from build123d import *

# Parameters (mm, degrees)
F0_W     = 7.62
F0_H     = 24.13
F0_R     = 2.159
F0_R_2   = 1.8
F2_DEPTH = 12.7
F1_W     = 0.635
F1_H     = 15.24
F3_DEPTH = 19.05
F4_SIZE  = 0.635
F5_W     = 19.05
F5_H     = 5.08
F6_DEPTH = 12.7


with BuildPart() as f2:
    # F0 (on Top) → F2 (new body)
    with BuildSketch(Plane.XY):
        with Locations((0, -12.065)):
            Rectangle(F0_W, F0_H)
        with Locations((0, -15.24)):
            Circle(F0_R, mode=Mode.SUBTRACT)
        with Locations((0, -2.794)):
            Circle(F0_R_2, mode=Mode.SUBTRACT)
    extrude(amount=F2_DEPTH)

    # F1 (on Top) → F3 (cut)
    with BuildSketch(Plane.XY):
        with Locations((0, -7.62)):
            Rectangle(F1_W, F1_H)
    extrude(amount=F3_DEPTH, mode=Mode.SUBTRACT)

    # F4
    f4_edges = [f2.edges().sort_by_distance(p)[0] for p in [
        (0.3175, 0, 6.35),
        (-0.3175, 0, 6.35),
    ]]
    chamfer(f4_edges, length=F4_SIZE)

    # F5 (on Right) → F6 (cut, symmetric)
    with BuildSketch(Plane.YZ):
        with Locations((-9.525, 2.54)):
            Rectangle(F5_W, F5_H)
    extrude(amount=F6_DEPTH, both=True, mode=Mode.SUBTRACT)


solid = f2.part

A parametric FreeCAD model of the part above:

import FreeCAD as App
import Part
import Sketcher

V = App.Vector
Q = App.Units.Quantity


def edges_at(feature, points):
    """Names of the edges that pass closest to the given points."""
    edges = feature.Shape.Edges
    near = lambda p: min(range(len(edges)), key=lambda i: edges[i].distToShape(Part.Vertex(*p))[0])
    return sorted({f"Edge{near(p) + 1}" for p in points})


def add_polygon(sketch, points):
    """Adds a closed chain of lines whose ends are joined by coincident constraints."""
    first, n = sketch.GeometryCount, len(points)
    for a, b in zip(points, points[1:] + points[:1]):
        sketch.addGeometry(Part.LineSegment(App.Vector(*a, 0), App.Vector(*b, 0)), False)
    for i in range(n):
        sketch.addConstraint(Sketcher.Constraint("Coincident", first + i, 2, first + (i + 1) % n, 1))

doc = App.newDocument("Part")
params = doc.addObject("Spreadsheet::Sheet", "Params")
for row, (alias, value) in enumerate([
    ("sketch1_diameter", "0.17 in"),
    ("sketch1_width", "0.3 in"),
    ("sketch1_height", "0.95 in"),
    ("pad1_length", "0.5 in"),
    ("sketch2_height", "0.6 in"),
    ("sketch2_width", "0.025 in"),
    ("pocket1_length", "0.75 in"),
    ("chamfer_size", "0.025 in"),
    ("sketch3_height", "0.2 in"),
    ("sketch3_width", "0.75 in"),
    ("pocket2_length", "1 in"),
], start=1):
    params.set(f"A{row}", alias)
    params.set(f"B{row}", "=" + value)
    params.setAlias(f"B{row}", alias)

body = doc.addObject("PartDesign::Body", "Body")

sketch1 = body.newObject("Sketcher::SketchObject", "Sketch")
sketch1.AttachmentSupport = (doc.getObject("XY_Plane"), [""])
sketch1.MapMode = "FlatFace"
add_polygon(sketch1, [(-3.81, 0), (-3.81, -24.13), (3.81, -24.13), (3.81, 0)])
sketch1.addGeometry(Part.Circle(V(0, -15.24, 0), V(0, 0, 1), 2.159), False)
sketch1.addGeometry(Part.Circle(V(0, -2.794, 0), V(0, 0, 1), 1.8), False)
sketch1.addConstraint([
    Sketcher.Constraint("Vertical", 0),
    Sketcher.Constraint("Horizontal", 1),
    Sketcher.Constraint("Vertical", 2),
    Sketcher.Constraint("Horizontal", 3),
    Sketcher.Constraint("Symmetric", 2, 2, 3, 2, -1, 1),
    Sketcher.Constraint("PointOnObject", 4, 3, -2),
    Sketcher.Constraint("PointOnObject", 5, 3, -2),
    Sketcher.Constraint("Diameter", 4, Q("0.17 in")),
    Sketcher.Constraint("DistanceX", 1, 1, 1, 2, Q("0.3 in")),
    Sketcher.Constraint("DistanceY", 0, 2, 0, 1, Q("0.95 in")),
    Sketcher.Constraint("DistanceY", 4, 3, -1, 1, Q("0.6 in")),
    Sketcher.Constraint("Diameter", 5, 3.6),
    Sketcher.Constraint("DistanceY", 5, 3, -1, 1, Q("0.11 in")),
])
sketch1.setExpression("Constraints[11]", "Params.sketch1_diameter")
sketch1.setExpression("Constraints[12]", "Params.sketch1_width")
sketch1.setExpression("Constraints[13]", "Params.sketch1_height")
pad1 = body.newObject("PartDesign::Pad", "Pad")
pad1.Profile = sketch1
pad1.setExpression("Length", "Params.pad1_length")

sketch2 = body.newObject("Sketcher::SketchObject", "Sketch001")
sketch2.AttachmentSupport = (doc.getObject("XY_Plane"), [""])
sketch2.MapMode = "FlatFace"
add_polygon(sketch2, [(-0.3175, 0), (-0.3175, -15.24), (0.3175, -15.24), (0.3175, 0)])
sketch2.addConstraint([
    Sketcher.Constraint("Vertical", 0),
    Sketcher.Constraint("Horizontal", 1),
    Sketcher.Constraint("Vertical", 2),
    Sketcher.Constraint("Horizontal", 3),
    Sketcher.Constraint("Symmetric", 2, 2, 3, 2, -1, 1),
    Sketcher.Constraint("DistanceY", 0, 2, 0, 1, Q("0.6 in")),
    Sketcher.Constraint("DistanceX", 1, 1, 1, 2, Q("0.025 in")),
])
sketch2.setExpression("Constraints[9]", "Params.sketch2_height")
sketch2.setExpression("Constraints[10]", "Params.sketch2_width")
pocket1 = body.newObject("PartDesign::Pocket", "Pocket")
pocket1.Profile = sketch2
pocket1.setExpression("Length", "Params.pocket1_length")
pocket1.Reversed = True
doc.recompute()

chamfer = body.newObject("PartDesign::Chamfer", "Chamfer")
chamfer.Base = (pocket1, edges_at(pocket1, [(0.318, 0, 6.35), (-0.318, 0, 6.35)]))
chamfer.setExpression("Size", "Params.chamfer_size")

sketch3 = body.newObject("Sketcher::SketchObject", "Sketch002")
sketch3.AttachmentSupport = (doc.getObject("YZ_Plane"), [""])
sketch3.MapMode = "FlatFace"
add_polygon(sketch3, [(-19.05, 5.08), (-19.05, 0), (0, 0), (0, 5.08)])
sketch3.addConstraint([
    Sketcher.Constraint("Vertical", 0),
    Sketcher.Constraint("Horizontal", 1),
    Sketcher.Constraint("Vertical", 2),
    Sketcher.Constraint("Horizontal", 3),
    Sketcher.Constraint("Coincident", 1, 2, -1, 1),
    Sketcher.Constraint("DistanceY", 0, 2, 0, 1, Q("0.2 in")),
    Sketcher.Constraint("DistanceX", 1, 1, 1, 2, Q("0.75 in")),
])
sketch3.setExpression("Constraints[9]", "Params.sketch3_height")
sketch3.setExpression("Constraints[10]", "Params.sketch3_width")
pocket2 = body.newObject("PartDesign::Pocket", "Pocket001")
pocket2.Profile = sketch3
pocket2.setExpression("Length", "Params.pocket2_length")
pocket2.Midplane = True

doc.recompute()
